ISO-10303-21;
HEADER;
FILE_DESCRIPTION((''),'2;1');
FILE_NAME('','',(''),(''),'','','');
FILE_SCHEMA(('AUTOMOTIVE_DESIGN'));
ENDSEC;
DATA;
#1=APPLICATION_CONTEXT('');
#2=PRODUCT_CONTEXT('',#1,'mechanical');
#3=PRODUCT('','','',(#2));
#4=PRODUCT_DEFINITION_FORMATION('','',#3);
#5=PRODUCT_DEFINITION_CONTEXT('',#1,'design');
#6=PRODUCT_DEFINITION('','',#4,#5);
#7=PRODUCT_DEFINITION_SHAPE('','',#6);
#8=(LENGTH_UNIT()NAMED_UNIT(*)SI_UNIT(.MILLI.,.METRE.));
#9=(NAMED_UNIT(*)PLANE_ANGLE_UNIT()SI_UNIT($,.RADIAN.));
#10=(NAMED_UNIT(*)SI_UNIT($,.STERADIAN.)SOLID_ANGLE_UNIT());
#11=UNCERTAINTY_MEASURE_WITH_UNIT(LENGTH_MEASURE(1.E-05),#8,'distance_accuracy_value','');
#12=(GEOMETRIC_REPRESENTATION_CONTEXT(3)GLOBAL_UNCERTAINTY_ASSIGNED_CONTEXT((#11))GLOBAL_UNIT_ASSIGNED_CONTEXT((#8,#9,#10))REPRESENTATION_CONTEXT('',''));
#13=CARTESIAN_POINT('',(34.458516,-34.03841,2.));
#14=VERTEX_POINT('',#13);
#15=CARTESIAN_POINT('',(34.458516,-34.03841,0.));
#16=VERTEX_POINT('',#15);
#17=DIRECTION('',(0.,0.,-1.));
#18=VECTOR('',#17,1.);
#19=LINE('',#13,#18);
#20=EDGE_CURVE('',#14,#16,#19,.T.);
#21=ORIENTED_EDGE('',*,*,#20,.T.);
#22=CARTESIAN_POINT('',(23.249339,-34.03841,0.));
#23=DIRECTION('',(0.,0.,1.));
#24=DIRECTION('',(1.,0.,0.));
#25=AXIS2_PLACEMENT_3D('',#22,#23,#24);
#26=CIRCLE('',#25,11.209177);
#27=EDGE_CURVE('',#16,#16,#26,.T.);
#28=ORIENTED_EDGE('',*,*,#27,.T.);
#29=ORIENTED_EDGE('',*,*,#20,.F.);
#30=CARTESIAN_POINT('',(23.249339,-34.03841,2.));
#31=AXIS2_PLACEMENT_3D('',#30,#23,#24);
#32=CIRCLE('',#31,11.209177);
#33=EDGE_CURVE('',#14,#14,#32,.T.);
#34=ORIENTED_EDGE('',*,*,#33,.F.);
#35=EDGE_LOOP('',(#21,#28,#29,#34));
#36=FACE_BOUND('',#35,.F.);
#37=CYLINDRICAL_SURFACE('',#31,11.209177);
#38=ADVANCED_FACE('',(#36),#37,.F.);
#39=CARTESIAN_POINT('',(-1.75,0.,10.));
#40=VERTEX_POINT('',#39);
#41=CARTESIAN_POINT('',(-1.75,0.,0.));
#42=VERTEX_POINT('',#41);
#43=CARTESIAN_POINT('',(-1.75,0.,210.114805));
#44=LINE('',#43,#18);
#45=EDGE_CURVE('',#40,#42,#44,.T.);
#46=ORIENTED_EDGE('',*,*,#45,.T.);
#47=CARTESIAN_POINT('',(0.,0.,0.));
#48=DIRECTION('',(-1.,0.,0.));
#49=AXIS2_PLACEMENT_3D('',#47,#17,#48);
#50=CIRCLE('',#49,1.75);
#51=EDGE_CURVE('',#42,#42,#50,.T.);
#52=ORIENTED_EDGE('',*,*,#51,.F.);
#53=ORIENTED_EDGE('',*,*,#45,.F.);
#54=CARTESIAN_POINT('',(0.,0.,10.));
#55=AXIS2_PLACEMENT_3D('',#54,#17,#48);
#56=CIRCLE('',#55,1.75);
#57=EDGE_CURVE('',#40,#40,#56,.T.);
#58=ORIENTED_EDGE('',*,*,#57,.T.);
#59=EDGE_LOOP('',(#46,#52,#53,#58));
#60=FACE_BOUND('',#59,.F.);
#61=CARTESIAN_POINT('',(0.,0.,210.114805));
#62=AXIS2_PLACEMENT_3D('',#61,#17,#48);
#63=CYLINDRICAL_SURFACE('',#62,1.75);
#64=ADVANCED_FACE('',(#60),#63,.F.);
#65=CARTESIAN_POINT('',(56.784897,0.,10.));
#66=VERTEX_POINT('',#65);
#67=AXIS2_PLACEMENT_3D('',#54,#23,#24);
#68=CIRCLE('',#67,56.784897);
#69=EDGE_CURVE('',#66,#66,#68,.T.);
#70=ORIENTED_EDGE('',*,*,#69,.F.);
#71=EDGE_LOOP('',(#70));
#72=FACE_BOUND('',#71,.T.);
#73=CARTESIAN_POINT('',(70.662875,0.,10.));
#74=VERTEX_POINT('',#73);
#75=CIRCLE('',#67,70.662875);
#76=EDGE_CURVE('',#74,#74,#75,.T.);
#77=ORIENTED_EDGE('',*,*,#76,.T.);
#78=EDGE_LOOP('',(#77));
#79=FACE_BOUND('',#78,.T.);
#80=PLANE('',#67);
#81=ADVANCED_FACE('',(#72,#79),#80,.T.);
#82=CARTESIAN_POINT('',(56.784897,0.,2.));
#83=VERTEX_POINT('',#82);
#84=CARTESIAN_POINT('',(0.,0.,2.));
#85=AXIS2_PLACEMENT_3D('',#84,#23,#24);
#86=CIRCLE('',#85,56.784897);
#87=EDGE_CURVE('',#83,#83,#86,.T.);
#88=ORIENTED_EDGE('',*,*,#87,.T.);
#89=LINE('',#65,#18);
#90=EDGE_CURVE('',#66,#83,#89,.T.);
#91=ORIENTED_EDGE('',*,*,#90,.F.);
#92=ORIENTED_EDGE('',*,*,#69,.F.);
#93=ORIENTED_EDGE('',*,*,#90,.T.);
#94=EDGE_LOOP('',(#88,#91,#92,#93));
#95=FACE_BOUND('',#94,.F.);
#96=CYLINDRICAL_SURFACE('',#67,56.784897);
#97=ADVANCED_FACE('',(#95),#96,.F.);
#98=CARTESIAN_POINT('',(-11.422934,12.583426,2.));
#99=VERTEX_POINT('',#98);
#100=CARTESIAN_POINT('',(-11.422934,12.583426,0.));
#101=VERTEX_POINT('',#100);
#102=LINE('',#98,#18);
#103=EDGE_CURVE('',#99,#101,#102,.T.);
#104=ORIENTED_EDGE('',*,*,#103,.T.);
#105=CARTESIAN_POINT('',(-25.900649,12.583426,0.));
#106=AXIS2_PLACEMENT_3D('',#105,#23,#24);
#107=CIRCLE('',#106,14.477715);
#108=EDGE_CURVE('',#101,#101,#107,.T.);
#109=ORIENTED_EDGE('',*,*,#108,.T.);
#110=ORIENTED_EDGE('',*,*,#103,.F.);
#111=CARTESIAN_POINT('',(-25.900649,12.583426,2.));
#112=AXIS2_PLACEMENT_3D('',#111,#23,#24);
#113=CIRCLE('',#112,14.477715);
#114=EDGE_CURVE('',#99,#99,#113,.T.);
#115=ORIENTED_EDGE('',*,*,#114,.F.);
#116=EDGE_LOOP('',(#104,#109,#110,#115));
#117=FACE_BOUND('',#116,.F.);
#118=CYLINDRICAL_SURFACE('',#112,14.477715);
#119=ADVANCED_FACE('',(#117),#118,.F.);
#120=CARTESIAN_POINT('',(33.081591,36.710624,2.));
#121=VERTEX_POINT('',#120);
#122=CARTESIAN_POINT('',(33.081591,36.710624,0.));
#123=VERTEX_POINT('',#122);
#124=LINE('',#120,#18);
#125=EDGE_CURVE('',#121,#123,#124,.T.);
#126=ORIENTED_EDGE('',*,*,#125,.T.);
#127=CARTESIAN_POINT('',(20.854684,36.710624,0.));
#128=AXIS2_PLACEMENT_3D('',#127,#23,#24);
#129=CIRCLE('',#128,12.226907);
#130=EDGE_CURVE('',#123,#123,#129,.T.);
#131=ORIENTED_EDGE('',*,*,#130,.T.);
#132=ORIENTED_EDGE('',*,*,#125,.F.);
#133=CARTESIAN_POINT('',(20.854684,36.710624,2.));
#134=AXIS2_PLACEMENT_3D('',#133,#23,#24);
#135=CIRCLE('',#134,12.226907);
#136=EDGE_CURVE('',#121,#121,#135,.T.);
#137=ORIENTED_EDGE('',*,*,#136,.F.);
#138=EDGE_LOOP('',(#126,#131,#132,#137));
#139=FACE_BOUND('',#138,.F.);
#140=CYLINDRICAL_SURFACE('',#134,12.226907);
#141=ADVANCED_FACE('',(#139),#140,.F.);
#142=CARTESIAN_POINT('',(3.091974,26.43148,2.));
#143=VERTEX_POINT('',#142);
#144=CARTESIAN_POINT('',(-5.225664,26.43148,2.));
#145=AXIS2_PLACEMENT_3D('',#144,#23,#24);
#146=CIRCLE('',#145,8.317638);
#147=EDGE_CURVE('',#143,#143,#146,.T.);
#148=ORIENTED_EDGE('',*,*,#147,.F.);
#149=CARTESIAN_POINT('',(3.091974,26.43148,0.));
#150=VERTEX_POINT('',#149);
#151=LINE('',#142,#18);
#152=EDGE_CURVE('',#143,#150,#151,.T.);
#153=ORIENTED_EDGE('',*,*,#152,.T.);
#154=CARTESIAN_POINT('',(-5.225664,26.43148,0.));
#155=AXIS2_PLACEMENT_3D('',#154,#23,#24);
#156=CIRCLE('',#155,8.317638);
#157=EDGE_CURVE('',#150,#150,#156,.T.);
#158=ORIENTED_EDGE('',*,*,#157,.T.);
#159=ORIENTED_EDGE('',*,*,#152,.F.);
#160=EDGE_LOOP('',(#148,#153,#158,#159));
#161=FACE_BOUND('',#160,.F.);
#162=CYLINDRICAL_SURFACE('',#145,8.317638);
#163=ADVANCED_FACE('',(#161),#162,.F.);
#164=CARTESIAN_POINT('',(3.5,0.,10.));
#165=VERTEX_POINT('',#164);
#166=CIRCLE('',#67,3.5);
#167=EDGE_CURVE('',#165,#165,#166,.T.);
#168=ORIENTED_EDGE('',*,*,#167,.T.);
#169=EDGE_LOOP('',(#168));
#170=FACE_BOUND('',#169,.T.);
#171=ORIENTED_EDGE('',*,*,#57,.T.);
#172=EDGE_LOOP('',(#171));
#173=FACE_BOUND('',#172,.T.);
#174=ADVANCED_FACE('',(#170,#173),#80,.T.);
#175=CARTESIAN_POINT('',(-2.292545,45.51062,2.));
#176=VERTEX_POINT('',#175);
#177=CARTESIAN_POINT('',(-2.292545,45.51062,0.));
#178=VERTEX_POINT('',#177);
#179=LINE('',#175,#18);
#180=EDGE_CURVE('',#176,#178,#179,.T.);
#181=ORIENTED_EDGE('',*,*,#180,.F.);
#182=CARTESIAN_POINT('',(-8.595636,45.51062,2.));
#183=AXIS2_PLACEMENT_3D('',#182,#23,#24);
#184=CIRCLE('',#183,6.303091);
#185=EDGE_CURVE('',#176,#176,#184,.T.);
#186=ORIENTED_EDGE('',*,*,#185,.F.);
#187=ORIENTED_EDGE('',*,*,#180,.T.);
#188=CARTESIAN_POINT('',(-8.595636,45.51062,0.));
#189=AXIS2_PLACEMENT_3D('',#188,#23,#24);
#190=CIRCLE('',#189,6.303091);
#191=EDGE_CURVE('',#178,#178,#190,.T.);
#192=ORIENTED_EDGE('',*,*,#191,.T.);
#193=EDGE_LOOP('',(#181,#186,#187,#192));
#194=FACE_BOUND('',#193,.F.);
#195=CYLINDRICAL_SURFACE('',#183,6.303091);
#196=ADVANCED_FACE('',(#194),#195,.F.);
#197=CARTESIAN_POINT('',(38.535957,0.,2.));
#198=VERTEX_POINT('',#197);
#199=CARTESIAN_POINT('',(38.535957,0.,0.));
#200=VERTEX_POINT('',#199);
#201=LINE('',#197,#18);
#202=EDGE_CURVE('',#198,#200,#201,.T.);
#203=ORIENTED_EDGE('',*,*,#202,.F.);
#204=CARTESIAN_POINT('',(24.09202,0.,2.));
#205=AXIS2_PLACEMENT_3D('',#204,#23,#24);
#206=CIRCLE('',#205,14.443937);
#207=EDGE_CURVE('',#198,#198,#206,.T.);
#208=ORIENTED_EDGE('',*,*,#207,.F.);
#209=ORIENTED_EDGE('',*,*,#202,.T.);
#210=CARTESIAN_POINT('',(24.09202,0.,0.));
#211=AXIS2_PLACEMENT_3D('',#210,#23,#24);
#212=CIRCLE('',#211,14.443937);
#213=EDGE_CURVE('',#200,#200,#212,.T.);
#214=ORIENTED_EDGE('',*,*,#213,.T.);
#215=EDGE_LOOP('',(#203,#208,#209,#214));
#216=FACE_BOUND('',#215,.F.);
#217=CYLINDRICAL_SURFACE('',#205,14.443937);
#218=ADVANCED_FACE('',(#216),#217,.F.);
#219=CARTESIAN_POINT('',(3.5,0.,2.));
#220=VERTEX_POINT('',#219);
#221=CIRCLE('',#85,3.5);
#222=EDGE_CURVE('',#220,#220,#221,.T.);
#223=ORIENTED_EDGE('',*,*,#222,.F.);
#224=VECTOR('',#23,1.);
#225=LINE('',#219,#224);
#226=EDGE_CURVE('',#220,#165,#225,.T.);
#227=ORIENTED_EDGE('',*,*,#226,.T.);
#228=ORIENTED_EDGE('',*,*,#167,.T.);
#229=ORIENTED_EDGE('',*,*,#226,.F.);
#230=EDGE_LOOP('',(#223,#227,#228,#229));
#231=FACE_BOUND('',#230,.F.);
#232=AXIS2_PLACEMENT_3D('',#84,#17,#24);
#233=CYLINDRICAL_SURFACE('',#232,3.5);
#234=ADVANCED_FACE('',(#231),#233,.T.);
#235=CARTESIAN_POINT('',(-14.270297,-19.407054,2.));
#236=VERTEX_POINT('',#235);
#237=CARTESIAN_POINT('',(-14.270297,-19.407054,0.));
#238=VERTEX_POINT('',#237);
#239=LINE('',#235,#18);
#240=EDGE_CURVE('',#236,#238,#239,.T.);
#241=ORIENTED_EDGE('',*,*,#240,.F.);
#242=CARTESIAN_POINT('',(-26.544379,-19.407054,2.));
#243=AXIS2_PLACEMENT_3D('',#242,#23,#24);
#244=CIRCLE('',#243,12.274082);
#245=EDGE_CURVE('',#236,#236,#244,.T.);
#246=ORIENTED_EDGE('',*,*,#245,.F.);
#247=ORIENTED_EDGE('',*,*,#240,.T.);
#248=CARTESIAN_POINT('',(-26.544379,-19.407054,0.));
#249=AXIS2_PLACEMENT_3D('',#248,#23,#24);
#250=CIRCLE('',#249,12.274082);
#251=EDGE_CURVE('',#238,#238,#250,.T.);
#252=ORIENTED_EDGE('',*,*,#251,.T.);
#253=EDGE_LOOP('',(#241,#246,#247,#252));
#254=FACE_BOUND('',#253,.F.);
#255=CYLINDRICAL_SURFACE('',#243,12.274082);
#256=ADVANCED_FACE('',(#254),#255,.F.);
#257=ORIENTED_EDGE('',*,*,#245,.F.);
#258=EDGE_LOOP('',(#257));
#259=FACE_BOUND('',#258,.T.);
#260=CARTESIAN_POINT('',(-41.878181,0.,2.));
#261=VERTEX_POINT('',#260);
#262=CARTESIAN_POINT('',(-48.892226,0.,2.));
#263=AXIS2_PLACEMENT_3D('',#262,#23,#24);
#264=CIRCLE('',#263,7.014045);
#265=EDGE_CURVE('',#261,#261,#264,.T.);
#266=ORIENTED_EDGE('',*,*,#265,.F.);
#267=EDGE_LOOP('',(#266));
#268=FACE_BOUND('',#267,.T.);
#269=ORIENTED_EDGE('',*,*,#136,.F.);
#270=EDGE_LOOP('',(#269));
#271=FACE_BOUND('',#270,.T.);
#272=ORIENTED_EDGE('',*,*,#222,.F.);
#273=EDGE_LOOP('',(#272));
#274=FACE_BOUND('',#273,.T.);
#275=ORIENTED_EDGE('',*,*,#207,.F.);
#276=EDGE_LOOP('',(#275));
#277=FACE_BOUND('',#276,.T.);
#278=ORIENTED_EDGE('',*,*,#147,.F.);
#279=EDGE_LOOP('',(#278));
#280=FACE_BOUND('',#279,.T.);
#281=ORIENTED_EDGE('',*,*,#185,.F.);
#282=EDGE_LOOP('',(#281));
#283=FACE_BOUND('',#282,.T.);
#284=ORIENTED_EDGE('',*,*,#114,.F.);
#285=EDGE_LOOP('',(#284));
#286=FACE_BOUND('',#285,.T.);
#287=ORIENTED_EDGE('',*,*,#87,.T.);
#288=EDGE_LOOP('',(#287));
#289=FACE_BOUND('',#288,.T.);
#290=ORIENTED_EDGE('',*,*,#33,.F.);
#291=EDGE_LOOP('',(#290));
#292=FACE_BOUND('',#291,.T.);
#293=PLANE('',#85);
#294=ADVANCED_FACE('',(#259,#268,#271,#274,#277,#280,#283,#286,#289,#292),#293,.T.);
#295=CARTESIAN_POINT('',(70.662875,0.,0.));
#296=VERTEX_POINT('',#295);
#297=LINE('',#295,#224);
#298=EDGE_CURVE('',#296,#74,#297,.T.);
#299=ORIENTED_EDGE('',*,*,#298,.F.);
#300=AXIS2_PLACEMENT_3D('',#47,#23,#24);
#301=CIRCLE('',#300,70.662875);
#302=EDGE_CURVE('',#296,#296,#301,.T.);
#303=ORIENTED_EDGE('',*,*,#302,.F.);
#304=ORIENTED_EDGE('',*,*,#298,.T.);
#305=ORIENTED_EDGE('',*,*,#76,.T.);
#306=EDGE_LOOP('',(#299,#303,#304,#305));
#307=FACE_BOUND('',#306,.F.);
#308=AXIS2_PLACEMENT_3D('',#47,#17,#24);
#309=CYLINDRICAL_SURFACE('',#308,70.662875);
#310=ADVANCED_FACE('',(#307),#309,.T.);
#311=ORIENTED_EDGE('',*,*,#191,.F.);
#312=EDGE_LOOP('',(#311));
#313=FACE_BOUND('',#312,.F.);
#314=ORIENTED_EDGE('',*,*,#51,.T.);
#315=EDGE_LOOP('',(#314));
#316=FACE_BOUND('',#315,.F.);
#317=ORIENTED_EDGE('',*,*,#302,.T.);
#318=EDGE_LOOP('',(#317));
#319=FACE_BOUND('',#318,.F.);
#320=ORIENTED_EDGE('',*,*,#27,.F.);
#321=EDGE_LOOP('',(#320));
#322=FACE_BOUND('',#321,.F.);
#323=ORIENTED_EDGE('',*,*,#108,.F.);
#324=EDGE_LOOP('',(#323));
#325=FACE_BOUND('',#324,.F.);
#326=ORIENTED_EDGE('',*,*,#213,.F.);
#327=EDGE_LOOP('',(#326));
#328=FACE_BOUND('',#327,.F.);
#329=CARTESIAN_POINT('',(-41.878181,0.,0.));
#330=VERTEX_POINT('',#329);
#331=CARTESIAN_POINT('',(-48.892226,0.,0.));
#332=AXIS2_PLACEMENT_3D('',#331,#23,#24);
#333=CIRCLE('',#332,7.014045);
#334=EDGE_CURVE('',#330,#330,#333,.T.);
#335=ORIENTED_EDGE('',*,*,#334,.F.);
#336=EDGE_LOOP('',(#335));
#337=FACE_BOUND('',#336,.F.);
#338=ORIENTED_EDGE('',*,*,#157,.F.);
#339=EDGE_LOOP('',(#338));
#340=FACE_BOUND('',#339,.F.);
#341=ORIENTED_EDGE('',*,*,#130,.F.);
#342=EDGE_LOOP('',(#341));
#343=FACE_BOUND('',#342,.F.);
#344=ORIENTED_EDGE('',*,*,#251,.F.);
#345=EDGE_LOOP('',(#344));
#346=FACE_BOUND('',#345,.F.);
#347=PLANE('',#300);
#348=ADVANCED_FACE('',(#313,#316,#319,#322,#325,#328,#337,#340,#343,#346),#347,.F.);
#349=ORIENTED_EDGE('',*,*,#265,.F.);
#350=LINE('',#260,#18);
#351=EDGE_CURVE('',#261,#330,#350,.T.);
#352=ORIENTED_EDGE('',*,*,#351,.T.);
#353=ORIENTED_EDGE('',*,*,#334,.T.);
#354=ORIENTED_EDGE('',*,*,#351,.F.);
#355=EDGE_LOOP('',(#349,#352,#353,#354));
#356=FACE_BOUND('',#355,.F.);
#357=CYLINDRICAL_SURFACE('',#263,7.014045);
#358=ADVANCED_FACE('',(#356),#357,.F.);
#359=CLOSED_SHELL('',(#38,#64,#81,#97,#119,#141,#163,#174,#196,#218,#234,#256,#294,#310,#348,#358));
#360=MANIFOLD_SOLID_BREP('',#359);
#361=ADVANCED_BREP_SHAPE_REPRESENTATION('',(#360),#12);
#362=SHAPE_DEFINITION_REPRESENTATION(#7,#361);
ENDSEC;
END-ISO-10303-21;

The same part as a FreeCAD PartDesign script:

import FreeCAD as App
import Part
import Sketcher

V = App.Vector
Q = App.Units.Quantity

doc = App.newDocument("Part")
params = doc.addObject("Spreadsheet::Sheet", "Params")
for row, (alias, value) in enumerate([
    ("pad1_length", "10 mm"),
    ("pocket1_length", "8 mm"),
    ("pocket2_length", "8 mm"),
    ("pocket3_length", "8 mm"),
    ("pocket4_length", "8 mm"),
    ("pocket5_length", "8 mm"),
    ("pocket6_length", "8 mm"),
    ("pocket7_length", "8 mm"),
    ("pocket8_length", "8 mm"),
    ("pocket9_length", "8 mm"),
    ("sketch11_diameter", "7 mm"),
    ("pad2_length", "8 mm"),
    ("sketch12_diameter", "3.5 mm"),
    ("hole_diameter", "3.5 mm"),
    ("pocket10_length", "8 mm"),
], start=1):
    params.set(f"A{row}", alias)
    params.set(f"B{row}", "=" + value)
    params.setAlias(f"B{row}", alias)

body = doc.addObject("PartDesign::Body", "Body")

# Sketch on XY plane
sketch1 = body.newObject("Sketcher::SketchObject", "Sketch")
sketch1.AttachmentSupport = (doc.getObject("XY_Plane"), [""])
sketch1.MapMode = "FlatFace"
sketch1.addGeometry(Part.Circle(V(0, 0, 0), V(0, 0, 1), 71), False)
sketch1.addConstraint([
    Sketcher.Constraint("Coincident", 0, 3, -1, 1),
    Sketcher.Constraint("Diameter", 0, Q("141.32575 mm")),
])
pad1 = body.newObject("PartDesign::Pad", "Pad")
pad1.Profile = sketch1
pad1.setExpression("Length", "Params.pad1_length")

# Sketch on XY plane
sketch2 = body.newObject("Sketcher::SketchObject", "Sketch001")
sketch2.AttachmentSupport = (doc.getObject("XY_Plane"), [""])
sketch2.MapMode = "FlatFace"
sketch2.AttachmentOffset = App.Placement(V(0, 0, 10), App.Rotation())
sketch2.addGeometry(Part.Circle(V(0, 0, 0), V(0, 0, 1), 57), False)
sketch2.addConstraint([
    Sketcher.Constraint("Coincident", 0, 3, -1, 1),
    Sketcher.Constraint("Diameter", 0, Q("113.569794 mm")),
])
pocket1 = body.newObject("PartDesign::Pocket", "Pocket")
pocket1.Profile = sketch2
pocket1.setExpression("Length", "Params.pocket1_length")

# Sketch on XY plane
sketch3 = body.newObject("Sketcher::SketchObject", "Sketch002")
sketch3.AttachmentSupport = (doc.getObject("XY_Plane"), [""])
sketch3.MapMode = "FlatFace"
sketch3.AttachmentOffset = App.Placement(V(0, 0, 2), App.Rotation())
sketch3.addGeometry(Part.Circle(V(-26, 13, 0), V(0, 0, 1), 14), False)
sketch3.addConstraint([
    Sketcher.Constraint("Diameter", 0, Q("28.95543 mm")),
    Sketcher.Constraint("DistanceX", 0, 3, -1, 1, Q("25.900649 mm")),
    Sketcher.Constraint("DistanceY", -1, 1, 0, 3, Q("12.583426 mm")),
])
pocket2 = body.newObject("PartDesign::Pocket", "Pocket001")
pocket2.Profile = sketch3
pocket2.setExpression("Length", "Params.pocket2_length")

# Sketch on XY plane
sketch4 = body.newObject("Sketcher::SketchObject", "Sketch003")
sketch4.AttachmentSupport = (doc.getObject("XY_Plane"), [""])
sketch4.MapMode = "FlatFace"
sketch4.AttachmentOffset = App.Placement(V(0, 0, 2), App.Rotation())
sketch4.addGeometry(Part.Circle(V(21, 37, 0), V(0, 0, 1), 12), False)
sketch4.addConstraint([
    Sketcher.Constraint("Diameter", 0, Q("24.453814 mm")),
    Sketcher.Constraint("DistanceX", -1, 1, 0, 3, Q("20.854684 mm")),
    Sketcher.Constraint("DistanceY", -1, 1, 0, 3, Q("36.710624 mm")),
])
pocket3 = body.newObject("PartDesign::Pocket", "Pocket002")
pocket3.Profile = sketch4
pocket3.setExpression("Length", "Params.pocket3_length")

# Sketch on XY plane
sketch5 = body.newObject("Sketcher::SketchObject", "Sketch004")
sketch5.AttachmentSupport = (doc.getObject("XY_Plane"), [""])
sketch5.MapMode = "FlatFace"
sketch5.AttachmentOffset = App.Placement(V(0, 0, 2), App.Rotation())
sketch5.addGeometry(Part.Circle(V(-49, 0, 0), V(0, 0, 1), 7), False)
sketch5.addConstraint([
    Sketcher.Constraint("PointOnObject", 0, 3, -1),
    Sketcher.Constraint("Diameter", 0, Q("14.02809 mm")),
    Sketcher.Constraint("DistanceX", 0, 3, -1, 1, Q("48.892226 mm")),
])
pocket4 = body.newObject("PartDesign::Pocket", "Pocket003")
pocket4.Profile = sketch5
pocket4.setExpression("Length", "Params.pocket4_length")

# Sketch on XY plane
sketch6 = body.newObject("Sketcher::SketchObject", "Sketch005")
sketch6.AttachmentSupport = (doc.getObject("XY_Plane"), [""])
sketch6.MapMode = "FlatFace"
sketch6.AttachmentOffset = App.Placement(V(0, 0, 2), App.Rotation())
sketch6.addGeometry(Part.Circle(V(24, 0, 0), V(0, 0, 1), 14), False)
sketch6.addConstraint([
    Sketcher.Constraint("PointOnObject", 0, 3, -1),
    Sketcher.Constraint("Diameter", 0, Q("28.887874 mm")),
    Sketcher.Constraint("DistanceX", -1, 1, 0, 3, Q("24.09202 mm")),
])
pocket5 = body.newObject("PartDesign::Pocket", "Pocket004")
pocket5.Profile = sketch6
pocket5.setExpression("Length", "Params.pocket5_length")

# Sketch on XY plane
sketch7 = body.newObject("Sketcher::SketchObject", "Sketch006")
sketch7.AttachmentSupport = (doc.getObject("XY_Plane"), [""])
sketch7.MapMode = "FlatFace"
sketch7.AttachmentOffset = App.Placement(V(0, 0, 2), App.Rotation())
sketch7.addGeometry(Part.Circle(V(-9, 46, 0), V(0, 0, 1), 6), False)
sketch7.addConstraint([
    Sketcher.Constraint("Diameter", 0, Q("12.606182 mm")),
    Sketcher.Constraint("DistanceY", -1, 1, 0, 3, Q("45.51062 mm")),
    Sketcher.Constraint("DistanceX", 0, 3, -1, 1, Q("8.595636 mm")),
])
pocket6 = body.newObject("PartDesign::Pocket", "Pocket005")
pocket6.Profile = sketch7
pocket6.setExpression("Length", "Params.pocket6_length")

# Sketch on XY plane
sketch8 = body.newObject("Sketcher::SketchObject", "Sketch007")
sketch8.AttachmentSupport = (doc.getObject("XY_Plane"), [""])
sketch8.MapMode = "FlatFace"
sketch8.AttachmentOffset = App.Placement(V(0, 0, 2), App.Rotation())
sketch8.addGeometry(Part.Circle(V(-5, 26, 0), V(0, 0, 1), 8), False)
sketch8.addConstraint([
    Sketcher.Constraint("Diameter", 0, Q("16.635276 mm")),
    Sketcher.Constraint("DistanceY", -1, 1, 0, 3, Q("26.43148 mm")),
    Sketcher.Constraint("DistanceX", 0, 3, -1, 1, Q("5.225664 mm")),
])
pocket7 = body.newObject("PartDesign::Pocket", "Pocket006")
pocket7.Profile = sketch8
pocket7.setExpression("Length", "Params.pocket7_length")

# Sketch on XY plane
sketch9 = body.newObject("Sketcher::SketchObject", "Sketch008")
sketch9.AttachmentSupport = (doc.getObject("XY_Plane"), [""])
sketch9.MapMode = "FlatFace"
sketch9.addGeometry(Part.Circle(V(15, -20, 0), V(0, 0, 1), 6), False)
sketch9.addConstraint([
    Sketcher.Constraint("Diameter", 0, Q("12.050562 mm")),
    Sketcher.Constraint("DistanceX", -1, 1, 0, 3, Q("14.564808 mm")),
    Sketcher.Constraint("DistanceY", 0, 3, -1, 1, Q("20.261167 mm")),
])
pocket8 = body.newObject("PartDesign::Pocket", "Pocket007")
pocket8.Profile = sketch9
pocket8.setExpression("Length", "Params.pocket8_length")

# Sketch on XY plane
sketch10 = body.newObject("Sketcher::SketchObject", "Sketch009")
sketch10.AttachmentSupport = (doc.getObject("XY_Plane"), [""])
sketch10.MapMode = "FlatFace"
sketch10.AttachmentOffset = App.Placement(V(0, 0, 2), App.Rotation())
sketch10.addGeometry(Part.Circle(V(23, -34, 0), V(0, 0, 1), 11), False)
sketch10.addConstraint([
    Sketcher.Constraint("Diameter", 0, Q("22.418354 mm")),
    Sketcher.Constraint("DistanceX", -1, 1, 0, 3, Q("23.249339 mm")),
    Sketcher.Constraint("DistanceY", 0, 3, -1, 1, Q("34.03841 mm")),
])
pocket9 = body.newObject("PartDesign::Pocket", "Pocket008")
pocket9.Profile = sketch10
pocket9.setExpression("Length", "Params.pocket9_length")

# Sketch on XY plane
sketch11 = body.newObject("Sketcher::SketchObject", "Sketch010")
sketch11.AttachmentSupport = (doc.getObject("XY_Plane"), [""])
sketch11.MapMode = "FlatFace"
sketch11.AttachmentOffset = App.Placement(V(0, 0, 2), App.Rotation())
sketch11.addGeometry(Part.Circle(V(0, 0, 0), V(0, 0, 1), 3.5), False)
sketch11.addConstraint([
    Sketcher.Constraint("Coincident", 0, 3, -1, 1),
    Sketcher.Constraint("Diameter", 0, Q("7 mm")),
])
sketch11.setExpression("Constraints[1]", "Params.sketch11_diameter")
pad2 = body.newObject("PartDesign::Pad", "Pad001")
pad2.Profile = sketch11
pad2.setExpression("Length", "Params.pad2_length")

# Sketch on XY plane
sketch12 = body.newObject("Sketcher::SketchObject", "Sketch011")
sketch12.AttachmentSupport = (doc.getObject("XY_Plane"), [""])
sketch12.MapMode = "FlatFace"
sketch12.AttachmentOffset = App.Placement(V(0, 0, 10), App.Rotation())
sketch12.addGeometry(Part.Circle(V(0, 0, 0), V(0, 0, 1), 1.8), False)
sketch12.addConstraint([
    Sketcher.Constraint("Coincident", 0, 3, -1, 1),
    Sketcher.Constraint("Diameter", 0, Q("3.5 mm")),
])
sketch12.setExpression("Constraints[1]", "Params.sketch12_diameter")
doc.recompute()
hole = body.newObject("PartDesign::Hole", "Hole")
hole.Profile = sketch12
hole.ThreadType = "None"
hole.setExpression("Diameter", "Params.hole_diameter")
hole.DepthType = "ThroughAll"

# Sketch on XY plane
sketch13 = body.newObject("Sketcher::SketchObject", "Sketch012")
sketch13.AttachmentSupport = (doc.getObject("XY_Plane"), [""])
sketch13.MapMode = "FlatFace"
sketch13.AttachmentOffset = App.Placement(V(0, 0, 2), App.Rotation())
sketch13.addGeometry(Part.Circle(V(-27, -19, 0), V(0, 0, 1), 12), False)
sketch13.addConstraint([
    Sketcher.Constraint("Diameter", 0, Q("24.548164 mm")),
    Sketcher.Constraint("DistanceX", 0, 3, -1, 1, Q("26.544379 mm")),
    Sketcher.Constraint("DistanceY", 0, 3, -1, 1, Q("19.407054 mm")),
])
pocket10 = body.newObject("PartDesign::Pocket", "Pocket009")
pocket10.Profile = sketch13
pocket10.setExpression("Length", "Params.pocket10_length")

doc.recompute()
